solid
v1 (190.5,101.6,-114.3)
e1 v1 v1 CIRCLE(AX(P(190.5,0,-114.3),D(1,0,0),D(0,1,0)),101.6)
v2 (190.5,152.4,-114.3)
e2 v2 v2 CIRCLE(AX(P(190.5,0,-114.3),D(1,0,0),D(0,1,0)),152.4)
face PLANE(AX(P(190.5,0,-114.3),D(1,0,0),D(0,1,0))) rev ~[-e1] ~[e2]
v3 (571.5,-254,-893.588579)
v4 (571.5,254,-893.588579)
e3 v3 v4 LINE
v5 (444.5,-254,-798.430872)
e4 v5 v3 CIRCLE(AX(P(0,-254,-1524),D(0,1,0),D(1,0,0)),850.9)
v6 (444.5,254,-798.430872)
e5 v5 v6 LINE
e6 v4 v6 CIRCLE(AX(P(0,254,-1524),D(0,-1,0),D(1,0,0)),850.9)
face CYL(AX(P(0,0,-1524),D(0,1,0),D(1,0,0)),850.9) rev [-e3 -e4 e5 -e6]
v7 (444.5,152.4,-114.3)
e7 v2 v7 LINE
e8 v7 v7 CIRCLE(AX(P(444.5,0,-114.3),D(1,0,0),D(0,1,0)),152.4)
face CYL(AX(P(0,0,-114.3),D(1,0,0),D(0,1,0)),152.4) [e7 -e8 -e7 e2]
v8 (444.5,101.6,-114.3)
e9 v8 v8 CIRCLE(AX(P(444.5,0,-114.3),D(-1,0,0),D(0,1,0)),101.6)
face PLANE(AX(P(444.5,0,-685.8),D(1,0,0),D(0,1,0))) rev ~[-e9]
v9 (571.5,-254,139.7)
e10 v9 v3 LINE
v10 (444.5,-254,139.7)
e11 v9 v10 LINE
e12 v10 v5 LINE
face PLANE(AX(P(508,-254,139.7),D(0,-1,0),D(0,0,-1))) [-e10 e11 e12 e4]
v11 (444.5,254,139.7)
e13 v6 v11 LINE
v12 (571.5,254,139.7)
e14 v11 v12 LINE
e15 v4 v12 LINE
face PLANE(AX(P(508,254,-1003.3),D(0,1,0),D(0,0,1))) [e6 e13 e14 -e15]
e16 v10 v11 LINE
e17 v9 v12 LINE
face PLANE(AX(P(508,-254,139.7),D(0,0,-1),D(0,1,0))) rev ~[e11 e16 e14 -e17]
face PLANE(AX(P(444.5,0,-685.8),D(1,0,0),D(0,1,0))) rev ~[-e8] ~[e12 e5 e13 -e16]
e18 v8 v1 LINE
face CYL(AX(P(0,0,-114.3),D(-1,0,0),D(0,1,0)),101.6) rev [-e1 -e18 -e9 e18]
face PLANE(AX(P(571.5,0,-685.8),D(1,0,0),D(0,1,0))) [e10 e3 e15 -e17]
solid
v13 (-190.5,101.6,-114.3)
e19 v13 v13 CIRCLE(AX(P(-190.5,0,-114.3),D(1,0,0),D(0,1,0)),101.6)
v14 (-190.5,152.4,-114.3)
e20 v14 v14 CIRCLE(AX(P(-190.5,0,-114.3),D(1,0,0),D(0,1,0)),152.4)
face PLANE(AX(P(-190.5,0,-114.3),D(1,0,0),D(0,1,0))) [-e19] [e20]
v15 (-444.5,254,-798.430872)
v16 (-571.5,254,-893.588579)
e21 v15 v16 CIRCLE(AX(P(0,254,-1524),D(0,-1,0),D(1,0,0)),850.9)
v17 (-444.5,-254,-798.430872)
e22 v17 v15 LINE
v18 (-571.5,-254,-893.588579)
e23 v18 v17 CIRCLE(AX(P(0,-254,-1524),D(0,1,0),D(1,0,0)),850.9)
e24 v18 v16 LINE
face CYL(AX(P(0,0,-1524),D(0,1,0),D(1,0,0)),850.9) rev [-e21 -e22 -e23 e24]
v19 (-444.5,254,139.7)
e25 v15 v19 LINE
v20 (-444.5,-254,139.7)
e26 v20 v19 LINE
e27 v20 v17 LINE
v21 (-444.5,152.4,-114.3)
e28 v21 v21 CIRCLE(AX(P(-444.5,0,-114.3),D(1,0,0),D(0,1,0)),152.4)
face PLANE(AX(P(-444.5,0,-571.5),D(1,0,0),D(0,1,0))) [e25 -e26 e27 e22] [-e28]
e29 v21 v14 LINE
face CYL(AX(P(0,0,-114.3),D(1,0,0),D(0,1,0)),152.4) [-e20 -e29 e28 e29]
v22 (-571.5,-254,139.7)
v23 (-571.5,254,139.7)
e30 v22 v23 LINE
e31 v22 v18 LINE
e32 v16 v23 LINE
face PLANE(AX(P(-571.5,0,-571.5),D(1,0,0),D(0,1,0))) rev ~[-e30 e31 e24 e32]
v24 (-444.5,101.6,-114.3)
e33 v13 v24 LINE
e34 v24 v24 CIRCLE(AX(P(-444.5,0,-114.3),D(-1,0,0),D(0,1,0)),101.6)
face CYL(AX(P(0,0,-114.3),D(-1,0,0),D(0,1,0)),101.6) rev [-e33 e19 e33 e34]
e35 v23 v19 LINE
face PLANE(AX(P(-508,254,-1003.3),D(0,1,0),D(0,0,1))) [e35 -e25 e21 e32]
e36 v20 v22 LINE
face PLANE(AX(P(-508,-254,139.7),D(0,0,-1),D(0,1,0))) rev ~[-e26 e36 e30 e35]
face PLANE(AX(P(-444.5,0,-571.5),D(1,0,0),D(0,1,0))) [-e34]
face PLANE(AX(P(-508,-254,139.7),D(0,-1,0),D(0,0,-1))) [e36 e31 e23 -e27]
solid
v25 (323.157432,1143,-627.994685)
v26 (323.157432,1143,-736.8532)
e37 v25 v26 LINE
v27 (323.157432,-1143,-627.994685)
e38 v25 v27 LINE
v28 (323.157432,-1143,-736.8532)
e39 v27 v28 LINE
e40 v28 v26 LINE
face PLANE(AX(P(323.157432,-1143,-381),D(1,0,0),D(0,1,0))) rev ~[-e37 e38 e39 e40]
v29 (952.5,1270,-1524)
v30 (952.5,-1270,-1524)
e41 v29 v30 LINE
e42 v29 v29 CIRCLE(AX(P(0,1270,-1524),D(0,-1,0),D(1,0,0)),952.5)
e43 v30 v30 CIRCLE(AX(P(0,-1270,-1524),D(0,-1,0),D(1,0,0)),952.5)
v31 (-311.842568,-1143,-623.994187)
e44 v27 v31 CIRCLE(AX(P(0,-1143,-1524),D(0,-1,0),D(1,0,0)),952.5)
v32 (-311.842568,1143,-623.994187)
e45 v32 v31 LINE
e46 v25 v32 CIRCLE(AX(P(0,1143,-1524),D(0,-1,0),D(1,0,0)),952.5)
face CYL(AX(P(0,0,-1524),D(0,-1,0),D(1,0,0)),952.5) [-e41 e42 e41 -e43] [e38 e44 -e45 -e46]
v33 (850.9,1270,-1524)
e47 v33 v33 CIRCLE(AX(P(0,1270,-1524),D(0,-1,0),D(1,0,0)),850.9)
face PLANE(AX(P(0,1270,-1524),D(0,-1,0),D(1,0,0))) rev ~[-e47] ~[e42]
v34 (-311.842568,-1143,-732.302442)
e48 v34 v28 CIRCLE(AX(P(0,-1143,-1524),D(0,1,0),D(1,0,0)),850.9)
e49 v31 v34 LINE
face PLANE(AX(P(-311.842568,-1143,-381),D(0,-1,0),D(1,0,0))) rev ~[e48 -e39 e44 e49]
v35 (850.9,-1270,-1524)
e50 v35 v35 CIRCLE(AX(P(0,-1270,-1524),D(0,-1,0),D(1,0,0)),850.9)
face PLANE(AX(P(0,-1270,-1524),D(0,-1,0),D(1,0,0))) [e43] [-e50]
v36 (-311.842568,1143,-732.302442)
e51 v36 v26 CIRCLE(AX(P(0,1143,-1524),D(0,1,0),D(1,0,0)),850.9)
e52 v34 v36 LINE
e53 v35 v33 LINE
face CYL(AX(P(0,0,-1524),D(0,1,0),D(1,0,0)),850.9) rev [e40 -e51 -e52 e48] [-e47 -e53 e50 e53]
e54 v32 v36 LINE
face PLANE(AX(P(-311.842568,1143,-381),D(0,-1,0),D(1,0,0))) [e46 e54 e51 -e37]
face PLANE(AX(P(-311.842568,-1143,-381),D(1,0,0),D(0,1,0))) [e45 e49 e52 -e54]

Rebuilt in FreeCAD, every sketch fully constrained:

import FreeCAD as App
import Part
import Sketcher
Q = App.Units.Quantity

doc = App.newDocument("Part")
params = doc.addObject("Spreadsheet::Sheet", "Params")
for row, (alias, value) in enumerate([
    ("sketch1_diameter", "12 in"),
    ("sketch1_diameter2", "8 in"),
    ("pad1_length", "40 in"),
    ("sketch2_diameter", "12 in"),
    ("sketch2_diameter2", "8 in"),
    ("pocket1_length", "15 in"),
    ("sketch3_width", "20 in"),
    ("sketch3_height", "45 in"),
    ("pad2_length", "5 in"),
    ("sketch4_width", "20 in"),
    ("sketch4_height", "45 in"),
    ("pad3_length", "5 in"),
    ("sketch5_diameter", "67 in"),
    ("sketch6_diameter", "67 in"),
    ("sketch7_diameter", "75 in"),
    ("sketch7_diameter2", "67 in"),
    ("pad4_length", "100 in"),
    ("sketch8_width", "25 in"),
    ("sketch8_height", "90 in"),
    ("pocket4_length", "20 in"),
], start=1):
    params.set(f"A{row}", alias)
    params.set(f"B{row}", "=" + value)
    params.setAlias(f"B{row}", alias)

body = doc.addObject("PartDesign::Body", "Body")
body.AllowCompound = True

# Sketch on YZ plane
sketch1 = body.newObject("Sketcher::SketchObject", "Sketch")
sketch1.AttachmentSupport = (doc.getObject("YZ_Plane"), [""])
sketch1.MapMode = "FlatFace"
sketch1.addGeometry([
    Part.Circle(App.Vector(0, -114.3, 0), App.Vector(0, 0, 1), 152.4),
    Part.Circle(App.Vector(0, -114.3, 0), App.Vector(0, 0, 1), 101.6),
], False)
sketch1.addConstraint([
    Sketcher.Constraint("Coincident", 1, 3, 0, 3),
    Sketcher.Constraint("PointOnObject", 0, 3, -2),
    Sketcher.Constraint("Diameter", 0, Q("12 in")),
    Sketcher.Constraint("Diameter", 1, Q("8 in")),
    Sketcher.Constraint("DistanceY", 0, 3, -1, 1, Q("4.5 in")),
])
sketch1.setExpression("Constraints[2]", "Params.sketch1_diameter")
sketch1.setExpression("Constraints[3]", "Params.sketch1_diameter2")
pad1 = body.newObject("PartDesign::Pad", "Pad")
pad1.Profile = sketch1
pad1.setExpression("Length", "Params.pad1_length")
pad1.Midplane = True

# Sketch on YZ plane
sketch2 = body.newObject("Sketcher::SketchObject", "Sketch001")
sketch2.AttachmentSupport = (doc.getObject("YZ_Plane"), [""])
sketch2.MapMode = "FlatFace"
sketch2.addGeometry([
    Part.Circle(App.Vector(0, -114.3, 0), App.Vector(0, 0, 1), 152.4),
    Part.Circle(App.Vector(0, -114.3, 0), App.Vector(0, 0, 1), 101.6),
], False)
sketch2.addConstraint([
    Sketcher.Constraint("Coincident", 1, 3, 0, 3),
    Sketcher.Constraint("PointOnObject", 0, 3, -2),
    Sketcher.Constraint("Diameter", 0, Q("12 in")),
    Sketcher.Constraint("Diameter", 1, Q("8 in")),
    Sketcher.Constraint("DistanceY", 0, 3, -1, 1, Q("4.5 in")),
])
sketch2.setExpression("Constraints[2]", "Params.sketch2_diameter")
sketch2.setExpression("Constraints[3]", "Params.sketch2_diameter2")
pocket1 = body.newObject("PartDesign::Pocket", "Pocket")
pocket1.Profile = sketch2
pocket1.setExpression("Length", "Params.pocket1_length")
pocket1.Midplane = True

# Sketch on YZ plane
sketch3 = body.newObject("Sketcher::SketchObject", "Sketch002")
sketch3.AttachmentSupport = (doc.getObject("YZ_Plane"), [""])
sketch3.MapMode = "FlatFace"
sketch3.AttachmentOffset = App.Placement(App.Vector(0, 0, 20 * 25.4), App.Rotation())
sketch3.addGeometry([
    Part.LineSegment(App.Vector(-254, -1003.3, 0), App.Vector(254, -1003.3, 0)),
    Part.LineSegment(App.Vector(254, -1003.3, 0), App.Vector(254, 139.7, 0)),
    Part.LineSegment(App.Vector(254, 139.7, 0), App.Vector(-254, 139.7, 0)),
    Part.LineSegment(App.Vector(-254, 139.7, 0), App.Vector(-254, -1003.3, 0)),
], False)
sketch3.addConstraint([
    Sketcher.Constraint("Coincident", 0, 2, 1, 1),
    Sketcher.Constraint("Coincident", 1, 2, 2, 1),
    Sketcher.Constraint("Coincident", 2, 2, 3, 1),
    Sketcher.Constraint("Coincident", 3, 2, 0, 1),
    Sketcher.Constraint("Horizontal", 0),
    Sketcher.Constraint("Vertical", 1),
    Sketcher.Constraint("Horizontal", 2),
    Sketcher.Constraint("Vertical", 3),
    Sketcher.Constraint("DistanceX", 0, 1, 0, 2, Q("20 in")),
    Sketcher.Constraint("DistanceY", 1, 1, 1, 2, Q("45 in")),
    Sketcher.Constraint("DistanceX", -1, 1, 0, 2, Q("10 in")),
    Sketcher.Constraint("DistanceY", 0, 2, -1, 1, Q("39.5 in")),
])
sketch3.setExpression("Constraints[8]", "Params.sketch3_width")
sketch3.setExpression("Constraints[9]", "Params.sketch3_height")
pad2 = body.newObject("PartDesign::Pad", "Pad001")
pad2.Profile = sketch3
pad2.setExpression("Length", "Params.pad2_length")
pad2.Midplane = True

# Sketch on YZ plane
sketch4 = body.newObject("Sketcher::SketchObject", "Sketch003")
sketch4.AttachmentSupport = (doc.getObject("YZ_Plane"), [""])
sketch4.MapMode = "FlatFace"
sketch4.AttachmentOffset = App.Placement(App.Vector(0, 0, -20 * 25.4), App.Rotation())
sketch4.addGeometry([
    Part.LineSegment(App.Vector(-254, -1003.3, 0), App.Vector(254, -1003.3, 0)),
    Part.LineSegment(App.Vector(254, -1003.3, 0), App.Vector(254, 139.7, 0)),
    Part.LineSegment(App.Vector(254, 139.7, 0), App.Vector(-254, 139.7, 0)),
    Part.LineSegment(App.Vector(-254, 139.7, 0), App.Vector(-254, -1003.3, 0)),
], False)
sketch4.addConstraint([
    Sketcher.Constraint("Coincident", 0, 2, 1, 1),
    Sketcher.Constraint("Coincident", 1, 2, 2, 1),
    Sketcher.Constraint("Coincident", 2, 2, 3, 1),
    Sketcher.Constraint("Coincident", 3, 2, 0, 1),
    Sketcher.Constraint("Horizontal", 0),
    Sketcher.Constraint("Vertical", 1),
    Sketcher.Constraint("Horizontal", 2),
    Sketcher.Constraint("Vertical", 3),
    Sketcher.Constraint("DistanceX", 0, 1, 0, 2, Q("20 in")),
    Sketcher.Constraint("DistanceY", 1, 1, 1, 2, Q("45 in")),
    Sketcher.Constraint("DistanceX", -1, 1, 0, 2, Q("10 in")),
    Sketcher.Constraint("DistanceY", 0, 2, -1, 1, Q("39.5 in")),
])
sketch4.setExpression("Constraints[8]", "Params.sketch4_width")
sketch4.setExpression("Constraints[9]", "Params.sketch4_height")
pad3 = body.newObject("PartDesign::Pad", "Pad002")
pad3.Profile = sketch4
pad3.setExpression("Length", "Params.pad3_length")
pad3.Midplane = True

# Sketch on XZ plane
sketch5 = body.newObject("Sketcher::SketchObject", "Sketch004")
sketch5.AttachmentSupport = (doc.getObject("XZ_Plane"), [""])
sketch5.MapMode = "FlatFace"
sketch5.addGeometry(Part.Circle(App.Vector(0, -1524, 0), App.Vector(0, 0, 1), 850.9), False)
sketch5.addConstraint([
    Sketcher.Constraint("PointOnObject", 0, 3, -2),
    Sketcher.Constraint("Diameter", 0, Q("67 in")),
    Sketcher.Constraint("DistanceY", 0, 3, -1, 1, Q("60 in")),
])
sketch5.setExpression("Constraints[1]", "Params.sketch5_diameter")
pocket2 = body.newObject("PartDesign::Pocket", "Pocket001")
pocket2.Profile = sketch5
pocket2.Type = "ThroughAll"

# Sketch on XZ plane
sketch6 = body.newObject("Sketcher::SketchObject", "Sketch005")
sketch6.AttachmentSupport = (doc.getObject("XZ_Plane"), [""])
sketch6.MapMode = "FlatFace"
sketch6.addGeometry(Part.Circle(App.Vector(0, -1524, 0), App.Vector(0, 0, 1), 850.9), False)
sketch6.addConstraint([
    Sketcher.Constraint("PointOnObject", 0, 3, -2),
    Sketcher.Constraint("Diameter", 0, Q("67 in")),
    Sketcher.Constraint("DistanceY", 0, 3, -1, 1, Q("60 in")),
])
sketch6.setExpression("Constraints[1]", "Params.sketch6_diameter")
pocket3 = body.newObject("PartDesign::Pocket", "Pocket002")
pocket3.Profile = sketch6
pocket3.Type = "ThroughAll"
pocket3.Reversed = True
body2 = doc.addObject("PartDesign::Body", "Body001")

# Sketch on XZ plane
sketch7 = body2.newObject("Sketcher::SketchObject", "Sketch006")
sketch7.AttachmentSupport = (doc.getObject("XZ_Plane001"), [""])
sketch7.MapMode = "FlatFace"
sketch7.addGeometry([
    Part.Circle(App.Vector(0, -1524, 0), App.Vector(0, 0, 1), 952.5),
    Part.Circle(App.Vector(0, -1524, 0), App.Vector(0, 0, 1), 850.9),
], False)
sketch7.addConstraint([
    Sketcher.Constraint("Coincident", 1, 3, 0, 3),
    Sketcher.Constraint("PointOnObject", 0, 3, -2),
    Sketcher.Constraint("Diameter", 0, Q("75 in")),
    Sketcher.Constraint("Diameter", 1, Q("67 in")),
    Sketcher.Constraint("DistanceY", 0, 3, -1, 1, Q("60 in")),
])
sketch7.setExpression("Constraints[2]", "Params.sketch7_diameter")
sketch7.setExpression("Constraints[3]", "Params.sketch7_diameter2")
pad4 = body2.newObject("PartDesign::Pad", "Pad003")
pad4.Profile = sketch7
pad4.setExpression("Length", "Params.pad4_length")
pad4.Midplane = True

# Sketch on XY plane
sketch8 = body2.newObject("Sketcher::SketchObject", "Sketch007")
sketch8.AttachmentSupport = (doc.getObject("XY_Plane001"), [""])
sketch8.MapMode = "FlatFace"
sketch8.AttachmentOffset = App.Placement(App.Vector(0, 0, -15 * 25.4), App.Rotation())
sketch8.addGeometry([
    Part.LineSegment(App.Vector(-311.842568, 1143, 0), App.Vector(-311.842568, -1143, 0)),
    Part.LineSegment(App.Vector(-311.842568, -1143, 0), App.Vector(323.157432, -1143, 0)),
    Part.LineSegment(App.Vector(323.157432, -1143, 0), App.Vector(323.157432, 1143, 0)),
    Part.LineSegment(App.Vector(323.157432, 1143, 0), App.Vector(-311.842568, 1143, 0)),
], False)
sketch8.addConstraint([
    Sketcher.Constraint("Coincident", 0, 2, 1, 1),
    Sketcher.Constraint("Coincident", 1, 2, 2, 1),
    Sketcher.Constraint("Coincident", 2, 2, 3, 1),
    Sketcher.Constraint("Coincident", 3, 2, 0, 1),
    Sketcher.Constraint("Vertical", 0),
    Sketcher.Constraint("Horizontal", 1),
    Sketcher.Constraint("Vertical", 2),
    Sketcher.Constraint("Horizontal", 3),
    Sketcher.Constraint("DistanceX", 1, 1, 1, 2, Q("25 in")),
    Sketcher.Constraint("DistanceY", 0, 2, 0, 1, Q("90 in")),
    Sketcher.Constraint("DistanceY", 0, 2, -1, 1, Q("45 in")),
    Sketcher.Constraint("DistanceX", 0, 2, -1, 1, 311.842568),
])
sketch8.setExpression("Constraints[8]", "Params.sketch8_width")
sketch8.setExpression("Constraints[9]", "Params.sketch8_height")
pocket4 = body2.newObject("PartDesign::Pocket", "Pocket003")
pocket4.Profile = sketch8
pocket4.setExpression("Length", "Params.pocket4_length")

doc.recompute()
